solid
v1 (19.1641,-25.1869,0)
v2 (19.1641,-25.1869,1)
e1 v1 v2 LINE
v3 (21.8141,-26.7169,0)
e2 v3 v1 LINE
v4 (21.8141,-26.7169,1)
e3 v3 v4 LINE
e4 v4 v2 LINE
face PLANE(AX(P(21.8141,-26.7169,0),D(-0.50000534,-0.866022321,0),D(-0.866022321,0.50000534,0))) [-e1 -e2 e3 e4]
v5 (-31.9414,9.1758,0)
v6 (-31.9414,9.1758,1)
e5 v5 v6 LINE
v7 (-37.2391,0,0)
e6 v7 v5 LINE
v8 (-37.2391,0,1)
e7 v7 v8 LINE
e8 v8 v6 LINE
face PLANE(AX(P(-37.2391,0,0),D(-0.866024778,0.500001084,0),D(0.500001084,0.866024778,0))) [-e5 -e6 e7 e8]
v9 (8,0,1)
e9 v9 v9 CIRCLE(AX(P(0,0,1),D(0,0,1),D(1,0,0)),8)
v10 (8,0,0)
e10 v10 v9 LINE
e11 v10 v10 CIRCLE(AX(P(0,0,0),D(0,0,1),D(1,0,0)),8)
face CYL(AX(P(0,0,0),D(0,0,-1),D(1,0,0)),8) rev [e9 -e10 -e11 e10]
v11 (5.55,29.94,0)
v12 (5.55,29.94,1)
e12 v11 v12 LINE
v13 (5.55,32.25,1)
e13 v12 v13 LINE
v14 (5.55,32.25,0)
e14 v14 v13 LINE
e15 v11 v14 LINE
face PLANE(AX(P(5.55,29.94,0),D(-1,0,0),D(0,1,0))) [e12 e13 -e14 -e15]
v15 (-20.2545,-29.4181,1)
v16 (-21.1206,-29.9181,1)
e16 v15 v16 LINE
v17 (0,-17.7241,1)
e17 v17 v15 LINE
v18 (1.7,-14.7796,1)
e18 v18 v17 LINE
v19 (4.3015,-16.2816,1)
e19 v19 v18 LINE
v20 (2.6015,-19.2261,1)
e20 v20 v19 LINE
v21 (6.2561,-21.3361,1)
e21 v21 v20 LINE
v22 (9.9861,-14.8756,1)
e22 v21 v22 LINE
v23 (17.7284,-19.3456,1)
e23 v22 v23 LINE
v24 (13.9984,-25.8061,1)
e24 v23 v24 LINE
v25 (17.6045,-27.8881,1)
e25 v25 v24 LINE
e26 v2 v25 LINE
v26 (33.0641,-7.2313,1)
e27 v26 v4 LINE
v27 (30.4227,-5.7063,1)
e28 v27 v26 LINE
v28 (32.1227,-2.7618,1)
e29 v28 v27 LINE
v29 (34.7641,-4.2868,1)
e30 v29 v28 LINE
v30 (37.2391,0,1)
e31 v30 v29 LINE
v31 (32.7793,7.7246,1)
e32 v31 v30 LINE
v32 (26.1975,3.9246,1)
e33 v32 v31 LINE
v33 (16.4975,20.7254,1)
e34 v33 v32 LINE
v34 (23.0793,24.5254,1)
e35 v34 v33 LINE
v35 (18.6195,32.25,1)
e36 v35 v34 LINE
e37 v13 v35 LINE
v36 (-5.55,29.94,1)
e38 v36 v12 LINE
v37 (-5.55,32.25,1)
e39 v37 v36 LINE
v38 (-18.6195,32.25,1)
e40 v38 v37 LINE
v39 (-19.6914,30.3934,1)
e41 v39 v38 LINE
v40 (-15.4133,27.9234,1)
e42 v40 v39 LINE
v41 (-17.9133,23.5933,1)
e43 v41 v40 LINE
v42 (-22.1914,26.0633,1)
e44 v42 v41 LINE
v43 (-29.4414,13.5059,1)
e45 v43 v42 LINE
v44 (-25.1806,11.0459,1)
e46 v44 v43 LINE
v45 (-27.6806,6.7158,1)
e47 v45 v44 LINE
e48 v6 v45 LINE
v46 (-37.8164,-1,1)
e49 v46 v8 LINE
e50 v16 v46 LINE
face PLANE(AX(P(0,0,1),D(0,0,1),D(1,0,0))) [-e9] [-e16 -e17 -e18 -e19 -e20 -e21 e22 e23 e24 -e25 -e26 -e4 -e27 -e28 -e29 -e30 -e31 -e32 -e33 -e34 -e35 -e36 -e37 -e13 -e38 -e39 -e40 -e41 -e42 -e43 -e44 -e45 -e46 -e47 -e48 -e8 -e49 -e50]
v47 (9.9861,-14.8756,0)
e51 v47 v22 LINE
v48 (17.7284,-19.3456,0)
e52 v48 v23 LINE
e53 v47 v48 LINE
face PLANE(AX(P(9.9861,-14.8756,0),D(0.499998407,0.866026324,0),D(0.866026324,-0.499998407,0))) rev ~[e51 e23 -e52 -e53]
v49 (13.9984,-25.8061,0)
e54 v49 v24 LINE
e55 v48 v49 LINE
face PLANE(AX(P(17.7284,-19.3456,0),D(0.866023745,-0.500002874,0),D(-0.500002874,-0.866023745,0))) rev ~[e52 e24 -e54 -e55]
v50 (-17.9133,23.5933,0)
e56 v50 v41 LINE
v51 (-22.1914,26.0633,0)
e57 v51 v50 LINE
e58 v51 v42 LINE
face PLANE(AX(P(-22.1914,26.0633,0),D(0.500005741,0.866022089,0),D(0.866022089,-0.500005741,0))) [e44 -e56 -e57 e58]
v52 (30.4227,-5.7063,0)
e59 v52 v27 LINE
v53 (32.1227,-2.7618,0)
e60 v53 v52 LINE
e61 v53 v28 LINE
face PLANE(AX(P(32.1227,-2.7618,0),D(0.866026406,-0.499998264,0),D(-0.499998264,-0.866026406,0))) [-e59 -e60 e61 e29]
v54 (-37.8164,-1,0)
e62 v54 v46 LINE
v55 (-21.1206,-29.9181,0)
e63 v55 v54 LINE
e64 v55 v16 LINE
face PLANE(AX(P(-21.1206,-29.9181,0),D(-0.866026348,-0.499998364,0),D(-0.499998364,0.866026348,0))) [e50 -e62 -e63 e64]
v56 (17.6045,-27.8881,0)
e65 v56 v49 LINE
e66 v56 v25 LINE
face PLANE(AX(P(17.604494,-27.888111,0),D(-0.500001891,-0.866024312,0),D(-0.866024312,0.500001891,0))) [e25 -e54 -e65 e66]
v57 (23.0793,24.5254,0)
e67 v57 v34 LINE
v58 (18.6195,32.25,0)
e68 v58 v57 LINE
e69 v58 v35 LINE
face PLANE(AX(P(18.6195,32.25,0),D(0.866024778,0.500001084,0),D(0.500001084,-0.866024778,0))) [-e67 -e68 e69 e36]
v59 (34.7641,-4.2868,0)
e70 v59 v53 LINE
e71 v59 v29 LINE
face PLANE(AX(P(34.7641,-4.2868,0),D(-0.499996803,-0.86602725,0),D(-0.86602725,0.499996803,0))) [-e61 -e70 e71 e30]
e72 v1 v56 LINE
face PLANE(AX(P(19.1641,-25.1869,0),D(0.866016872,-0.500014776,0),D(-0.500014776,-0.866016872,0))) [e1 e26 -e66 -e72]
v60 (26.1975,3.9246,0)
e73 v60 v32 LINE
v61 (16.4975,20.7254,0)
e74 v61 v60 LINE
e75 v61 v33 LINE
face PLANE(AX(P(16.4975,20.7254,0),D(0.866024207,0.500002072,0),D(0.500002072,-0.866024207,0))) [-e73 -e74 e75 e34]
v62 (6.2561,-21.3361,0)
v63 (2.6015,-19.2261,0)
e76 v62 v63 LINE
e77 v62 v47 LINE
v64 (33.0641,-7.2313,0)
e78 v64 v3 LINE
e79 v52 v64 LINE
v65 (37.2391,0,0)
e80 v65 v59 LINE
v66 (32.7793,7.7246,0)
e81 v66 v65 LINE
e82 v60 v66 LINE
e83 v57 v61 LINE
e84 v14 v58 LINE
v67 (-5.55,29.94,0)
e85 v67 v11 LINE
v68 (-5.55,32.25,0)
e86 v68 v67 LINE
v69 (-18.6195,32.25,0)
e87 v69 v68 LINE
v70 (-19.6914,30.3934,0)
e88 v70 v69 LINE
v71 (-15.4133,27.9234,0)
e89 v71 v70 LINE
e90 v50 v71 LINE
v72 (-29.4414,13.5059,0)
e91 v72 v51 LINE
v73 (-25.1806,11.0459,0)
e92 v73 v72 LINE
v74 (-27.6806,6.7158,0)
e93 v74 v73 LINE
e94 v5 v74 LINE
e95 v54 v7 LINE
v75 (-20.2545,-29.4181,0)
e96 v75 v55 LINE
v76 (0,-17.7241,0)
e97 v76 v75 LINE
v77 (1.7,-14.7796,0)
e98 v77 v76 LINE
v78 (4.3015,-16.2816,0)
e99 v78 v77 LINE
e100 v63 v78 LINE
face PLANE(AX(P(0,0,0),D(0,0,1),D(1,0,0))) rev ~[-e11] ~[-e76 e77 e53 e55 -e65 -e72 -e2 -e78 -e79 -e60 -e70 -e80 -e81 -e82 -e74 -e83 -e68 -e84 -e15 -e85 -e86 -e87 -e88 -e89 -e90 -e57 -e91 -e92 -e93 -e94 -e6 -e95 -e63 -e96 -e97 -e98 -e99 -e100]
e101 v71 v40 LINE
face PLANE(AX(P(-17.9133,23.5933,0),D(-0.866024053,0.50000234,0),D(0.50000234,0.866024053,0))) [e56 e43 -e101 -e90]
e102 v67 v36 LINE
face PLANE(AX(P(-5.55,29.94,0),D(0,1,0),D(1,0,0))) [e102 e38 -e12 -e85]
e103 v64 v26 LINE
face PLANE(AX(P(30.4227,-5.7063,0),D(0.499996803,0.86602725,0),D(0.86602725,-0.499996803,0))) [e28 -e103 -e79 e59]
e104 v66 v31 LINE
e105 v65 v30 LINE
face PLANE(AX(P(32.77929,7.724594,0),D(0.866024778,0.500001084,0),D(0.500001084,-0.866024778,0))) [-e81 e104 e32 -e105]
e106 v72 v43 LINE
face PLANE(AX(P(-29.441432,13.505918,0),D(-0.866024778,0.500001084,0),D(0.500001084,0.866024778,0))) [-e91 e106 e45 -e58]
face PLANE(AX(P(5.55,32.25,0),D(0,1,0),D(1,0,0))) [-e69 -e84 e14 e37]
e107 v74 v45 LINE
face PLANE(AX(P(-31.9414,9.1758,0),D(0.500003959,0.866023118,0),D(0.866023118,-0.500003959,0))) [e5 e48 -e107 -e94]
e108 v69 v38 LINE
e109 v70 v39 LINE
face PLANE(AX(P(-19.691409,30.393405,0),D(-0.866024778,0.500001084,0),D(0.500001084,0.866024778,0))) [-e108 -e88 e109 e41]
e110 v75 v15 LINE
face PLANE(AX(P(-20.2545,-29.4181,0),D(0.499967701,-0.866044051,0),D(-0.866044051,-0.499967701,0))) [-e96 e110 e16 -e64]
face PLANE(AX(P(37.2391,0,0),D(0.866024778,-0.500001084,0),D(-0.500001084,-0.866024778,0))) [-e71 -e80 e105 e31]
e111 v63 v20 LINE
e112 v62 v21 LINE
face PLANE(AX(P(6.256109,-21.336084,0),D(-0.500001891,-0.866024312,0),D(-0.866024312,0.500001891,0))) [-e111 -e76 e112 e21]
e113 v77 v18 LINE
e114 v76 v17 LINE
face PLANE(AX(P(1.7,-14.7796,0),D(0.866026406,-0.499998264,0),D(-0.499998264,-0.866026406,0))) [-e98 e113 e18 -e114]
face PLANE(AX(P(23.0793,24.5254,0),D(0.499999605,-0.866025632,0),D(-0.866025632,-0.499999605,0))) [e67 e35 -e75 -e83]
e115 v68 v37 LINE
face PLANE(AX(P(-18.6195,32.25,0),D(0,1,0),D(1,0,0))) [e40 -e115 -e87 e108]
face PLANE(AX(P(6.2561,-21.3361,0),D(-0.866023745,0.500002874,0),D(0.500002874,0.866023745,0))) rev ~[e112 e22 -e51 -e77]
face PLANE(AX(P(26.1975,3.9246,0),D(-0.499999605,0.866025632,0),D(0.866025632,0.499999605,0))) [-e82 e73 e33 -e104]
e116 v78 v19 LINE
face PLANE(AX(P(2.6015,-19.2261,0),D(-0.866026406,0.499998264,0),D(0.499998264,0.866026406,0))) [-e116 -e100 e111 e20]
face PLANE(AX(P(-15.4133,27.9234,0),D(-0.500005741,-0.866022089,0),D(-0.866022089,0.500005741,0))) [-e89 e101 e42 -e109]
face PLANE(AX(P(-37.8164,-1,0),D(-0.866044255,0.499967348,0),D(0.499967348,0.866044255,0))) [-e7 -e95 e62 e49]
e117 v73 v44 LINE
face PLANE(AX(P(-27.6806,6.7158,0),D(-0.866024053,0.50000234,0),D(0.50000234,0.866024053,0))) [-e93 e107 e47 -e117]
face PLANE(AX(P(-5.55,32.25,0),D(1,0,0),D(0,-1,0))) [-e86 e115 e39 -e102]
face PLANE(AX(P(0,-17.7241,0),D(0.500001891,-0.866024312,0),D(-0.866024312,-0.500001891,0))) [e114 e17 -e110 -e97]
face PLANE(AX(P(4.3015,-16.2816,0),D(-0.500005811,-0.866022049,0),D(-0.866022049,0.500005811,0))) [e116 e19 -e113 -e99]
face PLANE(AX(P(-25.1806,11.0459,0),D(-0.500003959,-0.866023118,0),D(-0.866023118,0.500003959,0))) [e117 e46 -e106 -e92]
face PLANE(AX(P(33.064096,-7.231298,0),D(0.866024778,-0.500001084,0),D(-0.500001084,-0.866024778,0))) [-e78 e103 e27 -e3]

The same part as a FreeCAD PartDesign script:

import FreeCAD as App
import Part
import Sketcher

V = App.Vector
Q = App.Units.Quantity

doc = App.newDocument("Part")
body = doc.addObject("PartDesign::Body", "Body")

# Sketch on XY plane
sketch1 = body.newObject("Sketcher::SketchObject", "Sketch")
sketch1.AttachmentSupport = (doc.getObject("XY_Plane"), [""])
sketch1.MapMode = "FlatFace"
sketch1.addGeometry(Part.LineSegment(V(34.764106, -4.286803, 0), V(37.2391, 0, 0)), False)
sketch1.addGeometry(Part.LineSegment(V(37.2391, 0, 0), V(32.77929, 7.724594, 0)), False)
sketch1.addGeometry(Part.LineSegment(V(32.7793, 7.7246, 0), V(26.1975, 3.9246, 0)), False)
sketch1.addGeometry(Part.LineSegment(V(26.1975, 3.9246, 0), V(16.4975, 20.7254, 0)), False)
sketch1.addGeometry(Part.LineSegment(V(16.4975, 20.7254, 0), V(23.0793, 24.5254, 0)), False)
sketch1.addGeometry(Part.LineSegment(V(23.07931, 24.525406, 0), V(18.6195, 32.25, 0)), False)
sketch1.addGeometry(Part.LineSegment(V(18.6195, 32.25, 0), V(5.55, 32.25, 0)), False)
sketch1.addGeometry(Part.LineSegment(V(5.55, 32.25, 0), V(5.55, 29.94, 0)), False)
sketch1.addGeometry(Part.LineSegment(V(5.55, 29.94, 0), V(-5.55, 29.94, 0)), False)
sketch1.addGeometry(Part.LineSegment(V(-5.55, 29.94, 0), V(-5.55, 32.25, 0)), False)
sketch1.addGeometry(Part.LineSegment(V(-5.55, 32.25, 0), V(-18.6195, 32.25, 0)), False)
sketch1.addGeometry(Part.LineSegment(V(-18.6195, 32.25, 0), V(-19.691409, 30.393405, 0)), False)
sketch1.addGeometry(Part.LineSegment(V(-19.6914, 30.3934, 0), V(-15.4133, 27.9234, 0)), False)
sketch1.addGeometry(Part.LineSegment(V(-15.4133, 27.9234, 0), V(-17.9133, 23.5933, 0)), False)
sketch1.addGeometry(Part.LineSegment(V(-17.9133, 23.5933, 0), V(-22.1914, 26.0633, 0)), False)
sketch1.addGeometry(Part.LineSegment(V(-22.191402, 26.063301, 0), V(-29.441432, 13.505918, 0)), False)
sketch1.addGeometry(Part.LineSegment(V(-29.4414, 13.5059, 0), V(-25.1806, 11.0459, 0)), False)
sketch1.addGeometry(Part.LineSegment(V(-25.1806, 11.0459, 0), V(-27.6806, 6.7158, 0)), False)
sketch1.addGeometry(Part.LineSegment(V(-27.6806, 6.7158, 0), V(-31.9414, 9.1758, 0)), False)
sketch1.addGeometry(Part.LineSegment(V(-31.941426, 9.175815, 0), V(-37.2391, 0, 0)), False)
sketch1.addGeometry(Part.LineSegment(V(-37.2391, 0, 0), V(-37.8164, -1, 0)), False)
sketch1.addGeometry(Part.LineSegment(V(-37.8164, -1, 0), V(-21.1206, -29.9181, 0)), False)
sketch1.addGeometry(Part.LineSegment(V(-21.1206, -29.9181, 0), V(-20.2545, -29.4181, 0)), False)
sketch1.addGeometry(Part.LineSegment(V(-20.2545, -29.4181, 0), V(0, -17.7241, 0)), False)
sketch1.addGeometry(Part.LineSegment(V(0, -17.7241, 0), V(1.7, -14.7796, 0)), False)
sketch1.addGeometry(Part.LineSegment(V(1.7, -14.7796, 0), V(4.3015, -16.2816, 0)), False)
sketch1.addGeometry(Part.LineSegment(V(4.3015, -16.2816, 0), V(2.6015, -19.2261, 0)), False)
sketch1.addGeometry(Part.LineSegment(V(2.601507, -19.226088, 0), V(6.256109, -21.336084, 0)), False)
sketch1.addGeometry(Part.LineSegment(V(6.2561, -21.3361, 0), V(9.9861, -14.8756, 0)), False)
sketch1.addGeometry(Part.LineSegment(V(9.9861, -14.8756, 0), V(17.7284, -19.3456, 0)), False)
sketch1.addGeometry(Part.LineSegment(V(17.7284, -19.3456, 0), V(13.9984, -25.8061, 0)), False)
sketch1.addGeometry(Part.LineSegment(V(13.998391, -25.806116, 0), V(17.604494, -27.888111, 0)), False)
sketch1.addGeometry(Part.LineSegment(V(17.6045, -27.8881, 0), V(19.1641, -25.1869, 0)), False)
sketch1.addGeometry(Part.LineSegment(V(19.1641, -25.1869, 0), V(21.8141, -26.7169, 0)), False)
sketch1.addGeometry(Part.LineSegment(V(21.81406, -26.716877, 0), V(33.064096, -7.231298, 0)), False)
sketch1.addGeometry(Part.LineSegment(V(33.0641, -7.2313, 0), V(30.4227, -5.7063, 0)), False)
sketch1.addGeometry(Part.LineSegment(V(30.4227, -5.7063, 0), V(32.1227, -2.7618, 0)), False)
sketch1.addGeometry(Part.LineSegment(V(32.1227, -2.7618, 0), V(34.7641, -4.2868, 0)), False)
sketch1.addGeometry(Part.Circle(V(0, 0, 0), V(0, 0, 1), 8), False)
sketch1.addConstraint(Sketcher.Constraint("Coincident", 0, 2, 1, 1))
sketch1.addConstraint(Sketcher.Constraint("Coincident", 1, 2, 2, 1))
sketch1.addConstraint(Sketcher.Constraint("Coincident", 2, 2, 3, 1))
sketch1.addConstraint(Sketcher.Constraint("Coincident", 3, 2, 4, 1))
sketch1.addConstraint(Sketcher.Constraint("Coincident", 4, 2, 5, 1))
sketch1.addConstraint(Sketcher.Constraint("Coincident", 5, 2, 6, 1))
sketch1.addConstraint(Sketcher.Constraint("Coincident", 6, 2, 7, 1))
sketch1.addConstraint(Sketcher.Constraint("Coincident", 7, 2, 8, 1))
sketch1.addConstraint(Sketcher.Constraint("Coincident", 8, 2, 9, 1))
sketch1.addConstraint(Sketcher.Constraint("Coincident", 9, 2, 10, 1))
sketch1.addConstraint(Sketcher.Constraint("Coincident", 10, 2, 11, 1))
sketch1.addConstraint(Sketcher.Constraint("Coincident", 11, 2, 12, 1))
sketch1.addConstraint(Sketcher.Constraint("Coincident", 12, 2, 13, 1))
sketch1.addConstraint(Sketcher.Constraint("Coincident", 13, 2, 14, 1))
sketch1.addConstraint(Sketcher.Constraint("Coincident", 14, 2, 15, 1))
sketch1.addConstraint(Sketcher.Constraint("Coincident", 15, 2, 16, 1))
sketch1.addConstraint(Sketcher.Constraint("Coincident", 16, 2, 17, 1))
sketch1.addConstraint(Sketcher.Constraint("Coincident", 17, 2, 18, 1))
sketch1.addConstraint(Sketcher.Constraint("Coincident", 18, 2, 19, 1))
sketch1.addConstraint(Sketcher.Constraint("Coincident", 19, 2, 20, 1))
sketch1.addConstraint(Sketcher.Constraint("Coincident", 20, 2, 21, 1))
sketch1.addConstraint(Sketcher.Constraint("Coincident", 21, 2, 22, 1))
sketch1.addConstraint(Sketcher.Constraint("Coincident", 22, 2, 23, 1))
sketch1.addConstraint(Sketcher.Constraint("Coincident", 23, 2, 24, 1))
sketch1.addConstraint(Sketcher.Constraint("Coincident", 24, 2, 25, 1))
sketch1.addConstraint(Sketcher.Constraint("Coincident", 25, 2, 26, 1))
sketch1.addConstraint(Sketcher.Constraint("Coincident", 26, 2, 27, 1))
sketch1.addConstraint(Sketcher.Constraint("Coincident", 27, 2, 28, 1))
sketch1.addConstraint(Sketcher.Constraint("Coincident", 28, 2, 29, 1))
sketch1.addConstraint(Sketcher.Constraint("Coincident", 29, 2, 30, 1))
sketch1.addConstraint(Sketcher.Constraint("Coincident", 30, 2, 31, 1))
sketch1.addConstraint(Sketcher.Constraint("Coincident", 31, 2, 32, 1))
sketch1.addConstraint(Sketcher.Constraint("Coincident", 32, 2, 33, 1))
sketch1.addConstraint(Sketcher.Constraint("Coincident", 33, 2, 34, 1))
sketch1.addConstraint(Sketcher.Constraint("Coincident", 34, 2, 35, 1))
sketch1.addConstraint(Sketcher.Constraint("Coincident", 35, 2, 36, 1))
sketch1.addConstraint(Sketcher.Constraint("Coincident", 36, 2, 37, 1))
sketch1.addConstraint(Sketcher.Constraint("Coincident", 37, 2, 0, 1))
sketch1.addConstraint(Sketcher.Constraint("Horizontal", 6))
sketch1.addConstraint(Sketcher.Constraint("Vertical", 7))
sketch1.addConstraint(Sketcher.Constraint("Horizontal", 8))
sketch1.addConstraint(Sketcher.Constraint("Vertical", 9))
sketch1.addConstraint(Sketcher.Constraint("Horizontal", 10))
sketch1.addConstraint(Sketcher.Constraint("Coincident", 38, 3, -1, 1))
sketch1.addConstraint(Sketcher.Constraint("Symmetric", 0, 2, 19, 2, -1, 1))
sketch1.addConstraint(Sketcher.Constraint("Symmetric", 6, 2, 9, 2, -2))
sketch1.addConstraint(Sketcher.Constraint("PointOnObject", 0, 2, -1))
sketch1.addConstraint(Sketcher.Constraint("PointOnObject", 23, 2, -2))
sketch1.addConstraint(Sketcher.Constraint("Perpendicular", 1, 2))
sketch1.addConstraint(Sketcher.Constraint("Perpendicular", 2, 3))
sketch1.addConstraint(Sketcher.Constraint("Perpendicular", 3, 4))
sketch1.addConstraint(Sketcher.Constraint("Perpendicular", 4, 5))
sketch1.addConstraint(Sketcher.Constraint("Parallel", 0, 11))
sketch1.addConstraint(Sketcher.Constraint("Perpendicular", 11, 12))
sketch1.addConstraint(Sketcher.Constraint("Perpendicular", 12, 13))
sketch1.addConstraint(Sketcher.Constraint("Perpendicular", 13, 14))
sketch1.addConstraint(Sketcher.Constraint("Perpendicular", 14, 15))
sketch1.addConstraint(Sketcher.Constraint("Perpendicular", 15, 16))
sketch1.addConstraint(Sketcher.Constraint("Perpendicular", 16, 17))
sketch1.addConstraint(Sketcher.Constraint("Perpendicular", 17, 18))
sketch1.addConstraint(Sketcher.Constraint("Perpendicular", 18, 19))
sketch1.addConstraint(Sketcher.Constraint("Parallel", 19, 20))
sketch1.addConstraint(Sketcher.Constraint("Parallel", 5, 21))
sketch1.addConstraint(Sketcher.Constraint("Perpendicular", 21, 22))
sketch1.addConstraint(Sketcher.Constraint("Parallel", 22, 23))
sketch1.addConstraint(Sketcher.Constraint("Parallel", 20, 24))
sketch1.addConstraint(Sketcher.Constraint("Perpendicular", 24, 25))
sketch1.addConstraint(Sketcher.Constraint("Perpendicular", 25, 26))
sketch1.addConstraint(Sketcher.Constraint("Perpendicular", 26, 27))
sketch1.addConstraint(Sketcher.Constraint("Perpendicular", 27, 28))
sketch1.addConstraint(Sketcher.Constraint("Perpendicular", 28, 29))
sketch1.addConstraint(Sketcher.Constraint("Perpendicular", 29, 30))
sketch1.addConstraint(Sketcher.Constraint("Perpendicular", 30, 31))
sketch1.addConstraint(Sketcher.Constraint("Perpendicular", 31, 32))
sketch1.addConstraint(Sketcher.Constraint("Perpendicular", 32, 33))
sketch1.addConstraint(Sketcher.Constraint("Perpendicular", 33, 34))
sketch1.addConstraint(Sketcher.Constraint("Perpendicular", 34, 35))
sketch1.addConstraint(Sketcher.Constraint("Perpendicular", 35, 36))
sketch1.addConstraint(Sketcher.Constraint("Perpendicular", 36, 37))
sketch1.addConstraint(Sketcher.Constraint("Equal", 6, 10))
sketch1.addConstraint(Sketcher.Constraint("Equal", 2, 4))
sketch1.addConstraint(Sketcher.Constraint("Equal", 1, 5))
sketch1.addConstraint(Sketcher.Constraint("Equal", 12, 14))
sketch1.addConstraint(Sketcher.Constraint("Equal", 13, 17))
sketch1.addConstraint(Sketcher.Constraint("Equal", 16, 18))
sketch1.addConstraint(Sketcher.Constraint("Equal", 24, 26))
sketch1.addConstraint(Sketcher.Constraint("Equal", 28, 30))
sketch1.addConstraint(Sketcher.Constraint("Equal", 26, 36))
sketch1.addConstraint(Sketcher.Constraint("Equal", 35, 37))
sketch1.addConstraint(Sketcher.Constraint("Diameter", 38, 16.0))
sketch1.addConstraint(Sketcher.Constraint("Distance", 13, 5.0))
sketch1.addConstraint(Sketcher.Constraint("Distance", 22, 1.0))
sketch1.addConstraint(Sketcher.Constraint("DistanceY", 20, 2, -1, 1, 1.0))
sketch1.addConstraint(Sketcher.Constraint("Distance", 2, 7.6))
sketch1.addConstraint(Sketcher.Constraint("Distance", 15, 14.5))
sketch1.addConstraint(Sketcher.Constraint("Distance", 24, 3.4))
sketch1.addConstraint(Sketcher.Constraint("Distance", 34, 22.5))
sketch1.addConstraint(Sketcher.Constraint("DistanceY", 7, 2, 7, 1, 2.31))
sketch1.addConstraint(Sketcher.Constraint("DistanceX", 3, 2, 2, 2, 9.7))
sketch1.addConstraint(Sketcher.Constraint("Distance", 0, 4.95))
sketch1.addConstraint(Sketcher.Constraint("Distance", 12, 4.94))
sketch1.addConstraint(Sketcher.Constraint("Distance", 16, 4.92))
sketch1.addConstraint(Sketcher.Constraint("Distance", 27, 4.22))
sketch1.addConstraint(Sketcher.Constraint("Distance", 28, 7.46))
sketch1.addConstraint(Sketcher.Constraint("Distance", 33, 3.06))
sketch1.addConstraint(Sketcher.Constraint("Distance", 35, 3.05))
sketch1.addConstraint(Sketcher.Constraint("DistanceX", -1, 1, 6, 2, 5.55))
sketch1.addConstraint(Sketcher.Constraint("Angle", 0, Q("60 deg")))
sketch1.addConstraint(Sketcher.Constraint("DistanceY", 29, 2, 28, 2, 4.47))
sketch1.addConstraint(Sketcher.Constraint("DistanceY", -1, 1, 5, 2, 32.25))
sketch1.addConstraint(Sketcher.Constraint("DistanceX", 17, 2, 21, 2, 6.56))
sketch1.addConstraint(Sketcher.Constraint("DistanceY", 23, 2, 17, 2, 24.44))
sketch1.addConstraint(Sketcher.Constraint("Distance", 23, 23.388))
sketch1.addConstraint(Sketcher.Constraint("Distance", 25, 3.004))
pad1 = body.newObject("PartDesign::Pad", "Pad")
pad1.Profile = sketch1
pad1.Length = 1

doc.recompute()
